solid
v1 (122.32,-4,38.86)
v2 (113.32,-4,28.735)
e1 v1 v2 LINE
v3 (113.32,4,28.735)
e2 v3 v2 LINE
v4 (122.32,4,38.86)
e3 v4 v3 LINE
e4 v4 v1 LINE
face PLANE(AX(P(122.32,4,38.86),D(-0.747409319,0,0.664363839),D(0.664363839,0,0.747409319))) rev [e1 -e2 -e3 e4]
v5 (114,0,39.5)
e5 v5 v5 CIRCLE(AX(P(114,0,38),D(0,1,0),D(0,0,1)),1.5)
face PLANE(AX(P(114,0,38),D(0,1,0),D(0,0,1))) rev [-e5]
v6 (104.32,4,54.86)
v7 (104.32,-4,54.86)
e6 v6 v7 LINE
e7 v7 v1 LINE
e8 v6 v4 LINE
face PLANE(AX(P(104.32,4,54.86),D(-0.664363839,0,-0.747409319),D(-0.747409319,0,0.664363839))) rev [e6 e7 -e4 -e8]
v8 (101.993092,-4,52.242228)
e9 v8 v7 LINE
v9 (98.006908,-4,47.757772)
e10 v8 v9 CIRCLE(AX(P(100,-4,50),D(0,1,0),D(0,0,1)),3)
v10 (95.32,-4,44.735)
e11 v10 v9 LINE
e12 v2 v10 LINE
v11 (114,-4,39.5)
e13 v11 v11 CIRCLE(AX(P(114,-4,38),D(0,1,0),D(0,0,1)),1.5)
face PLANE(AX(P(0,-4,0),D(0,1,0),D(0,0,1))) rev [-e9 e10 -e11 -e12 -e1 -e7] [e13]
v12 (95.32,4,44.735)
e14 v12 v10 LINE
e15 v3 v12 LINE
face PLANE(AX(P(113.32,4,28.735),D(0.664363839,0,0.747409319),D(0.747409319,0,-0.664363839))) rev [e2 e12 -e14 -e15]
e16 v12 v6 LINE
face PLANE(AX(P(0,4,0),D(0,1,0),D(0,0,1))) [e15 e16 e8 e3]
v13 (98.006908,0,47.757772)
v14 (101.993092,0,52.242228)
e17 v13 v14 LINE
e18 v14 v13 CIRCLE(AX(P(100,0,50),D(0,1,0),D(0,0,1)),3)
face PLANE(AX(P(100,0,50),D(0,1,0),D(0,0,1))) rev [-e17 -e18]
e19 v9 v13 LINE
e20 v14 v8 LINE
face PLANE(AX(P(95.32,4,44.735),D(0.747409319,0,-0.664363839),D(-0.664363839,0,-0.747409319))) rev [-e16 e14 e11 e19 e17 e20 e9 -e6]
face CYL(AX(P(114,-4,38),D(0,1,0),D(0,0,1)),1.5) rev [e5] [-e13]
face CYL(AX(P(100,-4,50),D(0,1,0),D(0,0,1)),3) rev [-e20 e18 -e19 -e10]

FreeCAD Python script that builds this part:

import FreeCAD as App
import Part
import Sketcher

doc = App.newDocument("Part")
params = doc.addObject("Spreadsheet::Sheet", "Params")
for row, (alias, value) in enumerate([
    ("pad1_length", "8 mm"),
    ("sketch2_diameter", "6 mm"),
    ("sketch2_diameter2", "3 mm"),
], start=1):
    params.set(f"A{row}", alias)
    params.set(f"B{row}", "=" + value)
    params.setAlias(f"B{row}", alias)

body = doc.addObject("PartDesign::Body", "Body")

# Sketch on XZ plane
sketch1 = body.newObject("Sketcher::SketchObject", "Sketch")
sketch1.AttachmentSupport = (doc.getObject("XZ_Plane"), [""])
sketch1.MapMode = "FlatFace"
sketch1.AttachmentOffset = App.Placement(App.Vector(0, 0, 4), App.Rotation())
sketch1.addGeometry(Part.LineSegment(App.Vector(104, 55, 0), App.Vector(122, 39, 0)), False)
sketch1.addGeometry(Part.LineSegment(App.Vector(122, 39, 0), App.Vector(113, 29, 0)), False)
sketch1.addGeometry(Part.LineSegment(App.Vector(113, 29, 0), App.Vector(95, 45, 0)), False)
sketch1.addGeometry(Part.LineSegment(App.Vector(95, 45, 0), App.Vector(104, 55, 0)), False)
sketch1.addConstraint(Sketcher.Constraint("Coincident", 0, 2, 1, 1))
sketch1.addConstraint(Sketcher.Constraint("Coincident", 1, 2, 2, 1))
sketch1.addConstraint(Sketcher.Constraint("Coincident", 2, 2, 3, 1))
sketch1.addConstraint(Sketcher.Constraint("Coincident", 3, 2, 0, 1))
sketch1.addConstraint(Sketcher.Constraint("Perpendicular", 0, 1))
sketch1.addConstraint(Sketcher.Constraint("Perpendicular", 1, 2))
sketch1.addConstraint(Sketcher.Constraint("Perpendicular", 2, 3))
sketch1.addConstraint(Sketcher.Constraint("DistanceX", 1, 2, 0, 2, 9.0))
sketch1.addConstraint(Sketcher.Constraint("DistanceX", 2, 2, 1, 2, 18.0))
sketch1.addConstraint(Sketcher.Constraint("DistanceY", 1, 2, 2, 2, 16.0))
sketch1.addConstraint(Sketcher.Constraint("DistanceX", -1, 1, 0, 2, 122.32))
sketch1.addConstraint(Sketcher.Constraint("DistanceY", -1, 1, 0, 2, 38.86))
pad1 = body.newObject("PartDesign::Pad", "Pad")
pad1.Profile = sketch1
pad1.setExpression("Length", "Params.pad1_length")
pad1.Reversed = True

# Sketch on XZ plane
sketch2 = body.newObject("Sketcher::SketchObject", "Sketch001")
sketch2.AttachmentSupport = (doc.getObject("XZ_Plane"), [""])
sketch2.MapMode = "FlatFace"
sketch2.addGeometry(Part.Circle(App.Vector(100, 50, 0), App.Vector(0, 0, 1), 3), False)
sketch2.addGeometry(Part.Circle(App.Vector(114, 38, 0), App.Vector(0, 0, 1), 1.5), False)
sketch2.addConstraint(Sketcher.Constraint("Diameter", 0, 6.0))
sketch2.addConstraint(Sketcher.Constraint("Diameter", 1, 3.0))
sketch2.addConstraint(Sketcher.Constraint("DistanceX", -1, 1, 0, 3, 100.0))
sketch2.addConstraint(Sketcher.Constraint("DistanceY", -1, 1, 0, 3, 50.0))
sketch2.addConstraint(Sketcher.Constraint("DistanceX", -1, 1, 1, 3, 114.0))
sketch2.addConstraint(Sketcher.Constraint("DistanceY", -1, 1, 1, 3, 38.0))
sketch2.setExpression("Constraints[0]", "Params.sketch2_diameter")
sketch2.setExpression("Constraints[1]", "Params.sketch2_diameter2")
pocket1 = body.newObject("PartDesign::Pocket", "Pocket")
pocket1.Profile = sketch2
pocket1.Type = "ThroughAll"
pocket1.Reversed = True

doc.recompute()
